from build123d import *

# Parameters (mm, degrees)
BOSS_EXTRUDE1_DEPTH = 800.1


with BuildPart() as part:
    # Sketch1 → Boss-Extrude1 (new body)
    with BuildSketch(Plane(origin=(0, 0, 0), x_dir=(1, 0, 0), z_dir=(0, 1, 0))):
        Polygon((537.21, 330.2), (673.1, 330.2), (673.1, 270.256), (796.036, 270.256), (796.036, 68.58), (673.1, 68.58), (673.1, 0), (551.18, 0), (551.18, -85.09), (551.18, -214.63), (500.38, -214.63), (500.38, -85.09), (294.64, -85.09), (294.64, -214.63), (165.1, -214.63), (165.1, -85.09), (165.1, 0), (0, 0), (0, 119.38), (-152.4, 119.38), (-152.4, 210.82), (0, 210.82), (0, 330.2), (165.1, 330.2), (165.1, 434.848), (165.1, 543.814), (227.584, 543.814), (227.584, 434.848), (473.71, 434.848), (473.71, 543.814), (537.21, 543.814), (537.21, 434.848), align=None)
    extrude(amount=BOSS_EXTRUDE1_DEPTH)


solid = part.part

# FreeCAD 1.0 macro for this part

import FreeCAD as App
import Part
import Sketcher
Q = App.Units.Quantity

doc = App.newDocument("Part")
body = doc.addObject("PartDesign::Body", "Body")

sketch1 = body.newObject("Sketcher::SketchObject", "Sketch")
sketch1.AttachmentSupport = (doc.getObject("XZ_Plane"), [""])
sketch1.MapMode = "FlatFace"
sketch1.addGeometry([
    Part.LineSegment(App.Vector(673, -330, 0), App.Vector(537, -330, 0)),
    Part.LineSegment(App.Vector(537, -330, 0), App.Vector(537, -544, 0)),
    Part.LineSegment(App.Vector(537, -544, 0), App.Vector(474, -544, 0)),
    Part.LineSegment(App.Vector(474, -544, 0), App.Vector(474, -435, 0)),
    Part.LineSegment(App.Vector(474, -435, 0), App.Vector(228, -435, 0)),
    Part.LineSegment(App.Vector(228, -435, 0), App.Vector(228, -544, 0)),
    Part.LineSegment(App.Vector(228, -544, 0), App.Vector(165, -544, 0)),
    Part.LineSegment(App.Vector(165, -544, 0), App.Vector(165, -330, 0)),
    Part.LineSegment(App.Vector(165, -330, 0), App.Vector(0, -330, 0)),
    Part.LineSegment(App.Vector(0, -330, 0), App.Vector(0, -211, 0)),
    Part.LineSegment(App.Vector(0, -211, 0), App.Vector(-152, -211, 0)),
    Part.LineSegment(App.Vector(-152, -211, 0), App.Vector(-152, -119, 0)),
    Part.LineSegment(App.Vector(-152, -119, 0), App.Vector(0, -119, 0)),
    Part.LineSegment(App.Vector(0, -119, 0), App.Vector(0, 0, 0)),
    Part.LineSegment(App.Vector(0, 0, 0), App.Vector(165, 0, 0)),
    Part.LineSegment(App.Vector(165, 0, 0), App.Vector(165, 215, 0)),
    Part.LineSegment(App.Vector(165, 215, 0), App.Vector(295, 215, 0)),
    Part.LineSegment(App.Vector(295, 215, 0), App.Vector(295, 85, 0)),
    Part.LineSegment(App.Vector(295, 85, 0), App.Vector(500, 85, 0)),
    Part.LineSegment(App.Vector(500, 85, 0), App.Vector(500, 215, 0)),
    Part.LineSegment(App.Vector(500, 215, 0), App.Vector(551, 215, 0)),
    Part.LineSegment(App.Vector(551, 215, 0), App.Vector(551, 0, 0)),
    Part.LineSegment(App.Vector(551, 0, 0), App.Vector(673, 0, 0)),
    Part.LineSegment(App.Vector(673, 0, 0), App.Vector(673, -69, 0)),
    Part.LineSegment(App.Vector(673, -69, 0), App.Vector(796, -69, 0)),
    Part.LineSegment(App.Vector(796, -69, 0), App.Vector(796, -270, 0)),
    Part.LineSegment(App.Vector(796, -270, 0), App.Vector(673, -270, 0)),
    Part.LineSegment(App.Vector(673, -270, 0), App.Vector(673, -330, 0)),
], False)
sketch1.addConstraint([
    Sketcher.Constraint("Coincident", 0, 2, 1, 1),
    Sketcher.Constraint("Coincident", 1, 2, 2, 1),
    Sketcher.Constraint("Coincident", 2, 2, 3, 1),
    Sketcher.Constraint("Coincident", 3, 2, 4, 1),
    Sketcher.Constraint("Coincident", 4, 2, 5, 1),
    Sketcher.Constraint("Coincident", 5, 2, 6, 1),
    Sketcher.Constraint("Coincident", 6, 2, 7, 1),
    Sketcher.Constraint("Coincident", 7, 2, 8, 1),
    Sketcher.Constraint("Coincident", 8, 2, 9, 1),
    Sketcher.Constraint("Coincident", 9, 2, 10, 1),
    Sketcher.Constraint("Coincident", 10, 2, 11, 1),
    Sketcher.Constraint("Coincident", 11, 2, 12, 1),
    Sketcher.Constraint("Coincident", 12, 2, 13, 1),
    Sketcher.Constraint("Coincident", 13, 2, 14, 1),
    Sketcher.Constraint("Coincident", 14, 2, 15, 1),
    Sketcher.Constraint("Coincident", 15, 2, 16, 1),
    Sketcher.Constraint("Coincident", 16, 2, 17, 1),
    Sketcher.Constraint("Coincident", 17, 2, 18, 1),
    Sketcher.Constraint("Coincident", 18, 2, 19, 1),
    Sketcher.Constraint("Coincident", 19, 2, 20, 1),
    Sketcher.Constraint("Coincident", 20, 2, 21, 1),
    Sketcher.Constraint("Coincident", 21, 2, 22, 1),
    Sketcher.Constraint("Coincident", 22, 2, 23, 1),
    Sketcher.Constraint("Coincident", 23, 2, 24, 1),
    Sketcher.Constraint("Coincident", 24, 2, 25, 1),
    Sketcher.Constraint("Coincident", 25, 2, 26, 1),
    Sketcher.Constraint("Coincident", 26, 2, 27, 1),
    Sketcher.Constraint("Coincident", 27, 2, 0, 1),
    Sketcher.Constraint("Horizontal", 0),
    Sketcher.Constraint("Vertical", 1),
    Sketcher.Constraint("Horizontal", 2),
    Sketcher.Constraint("Vertical", 3),
    Sketcher.Constraint("Horizontal", 4),
    Sketcher.Constraint("Vertical", 5),
    Sketcher.Constraint("Horizontal", 6),
    Sketcher.Constraint("Vertical", 7),
    Sketcher.Constraint("Horizontal", 8),
    Sketcher.Constraint("Vertical", 9),
    Sketcher.Constraint("Horizontal", 10),
    Sketcher.Constraint("Vertical", 11),
    Sketcher.Constraint("Horizontal", 12),
    Sketcher.Constraint("Vertical", 13),
    Sketcher.Constraint("Horizontal", 14),
    Sketcher.Constraint("Vertical", 15),
    Sketcher.Constraint("Horizontal", 16),
    Sketcher.Constraint("Vertical", 17),
    Sketcher.Constraint("Horizontal", 18),
    Sketcher.Constraint("Vertical", 19),
    Sketcher.Constraint("Horizontal", 20),
    Sketcher.Constraint("Vertical", 21),
    Sketcher.Constraint("Horizontal", 22),
    Sketcher.Constraint("Vertical", 23),
    Sketcher.Constraint("Horizontal", 24),
    Sketcher.Constraint("Vertical", 25),
    Sketcher.Constraint("Horizontal", 26),
    Sketcher.Constraint("Vertical", 27),
    Sketcher.Constraint("Coincident", 13, 2, -1, 1),
    Sketcher.Constraint("PointOnObject", 8, 2, -2),
    Sketcher.Constraint("PointOnObject", 21, 2, -1),
    Sketcher.Constraint("Horizontal", 2, 2, 5, 2),
    Sketcher.Constraint("Horizontal", 0, 2, 7, 2),
    Sketcher.Constraint("Horizontal", 16, 2, 19, 2),
    Sketcher.Constraint("Vertical", 7, 2, 14, 2),
    Sketcher.Constraint("Vertical", 23, 2, 26, 2),
    Sketcher.Constraint("Equal", 9, 13),
    Sketcher.Constraint("Equal", 16, 17),
    Sketcher.Constraint("DistanceX", 10, 2, 10, 1, Q("6 in")),
    Sketcher.Constraint("DistanceX", 20, 1, 20, 2, Q("2 in")),
    Sketcher.Constraint("DistanceX", 2, 2, 2, 1, Q("2.5 in")),
    Sketcher.Constraint("DistanceX", 8, 2, 8, 1, Q("6.5 in")),
    Sketcher.Constraint("DistanceX", 16, 1, 16, 2, Q("5.1 in")),
    Sketcher.Constraint("DistanceX", 18, 1, 18, 2, Q("8.1 in")),
    Sketcher.Constraint("DistanceX", 22, 1, 22, 2, Q("4.8 in")),
    Sketcher.Constraint("DistanceY", 9, 1, 9, 2, Q("4.7 in")),
    Sketcher.Constraint("DistanceY", 11, 1, 11, 2, Q("3.6 in")),
    Sketcher.Constraint("DistanceY", 23, 2, 23, 1, Q("2.7 in")),
    Sketcher.Constraint("DistanceX", 0, 2, 0, 1, Q("5.35 in")),
    Sketcher.Constraint("DistanceX", 4, 2, 4, 1, Q("9.69 in")),
    Sketcher.Constraint("DistanceX", 24, 1, 24, 2, Q("4.84 in")),
    Sketcher.Constraint("DistanceY", 1, 2, 1, 1, Q("8.41 in")),
    Sketcher.Constraint("DistanceY", 3, 1, 3, 2, Q("4.29 in")),
    Sketcher.Constraint("DistanceY", 15, 1, 15, 2, Q("8.45 in")),
    Sketcher.Constraint("DistanceY", 25, 2, 25, 1, Q("7.94 in")),
])
pad1 = body.newObject("PartDesign::Pad", "Pad")
pad1.Profile = sketch1
pad1.Length = Q("31.5 in")
pad1.Reversed = True

doc.recompute()
